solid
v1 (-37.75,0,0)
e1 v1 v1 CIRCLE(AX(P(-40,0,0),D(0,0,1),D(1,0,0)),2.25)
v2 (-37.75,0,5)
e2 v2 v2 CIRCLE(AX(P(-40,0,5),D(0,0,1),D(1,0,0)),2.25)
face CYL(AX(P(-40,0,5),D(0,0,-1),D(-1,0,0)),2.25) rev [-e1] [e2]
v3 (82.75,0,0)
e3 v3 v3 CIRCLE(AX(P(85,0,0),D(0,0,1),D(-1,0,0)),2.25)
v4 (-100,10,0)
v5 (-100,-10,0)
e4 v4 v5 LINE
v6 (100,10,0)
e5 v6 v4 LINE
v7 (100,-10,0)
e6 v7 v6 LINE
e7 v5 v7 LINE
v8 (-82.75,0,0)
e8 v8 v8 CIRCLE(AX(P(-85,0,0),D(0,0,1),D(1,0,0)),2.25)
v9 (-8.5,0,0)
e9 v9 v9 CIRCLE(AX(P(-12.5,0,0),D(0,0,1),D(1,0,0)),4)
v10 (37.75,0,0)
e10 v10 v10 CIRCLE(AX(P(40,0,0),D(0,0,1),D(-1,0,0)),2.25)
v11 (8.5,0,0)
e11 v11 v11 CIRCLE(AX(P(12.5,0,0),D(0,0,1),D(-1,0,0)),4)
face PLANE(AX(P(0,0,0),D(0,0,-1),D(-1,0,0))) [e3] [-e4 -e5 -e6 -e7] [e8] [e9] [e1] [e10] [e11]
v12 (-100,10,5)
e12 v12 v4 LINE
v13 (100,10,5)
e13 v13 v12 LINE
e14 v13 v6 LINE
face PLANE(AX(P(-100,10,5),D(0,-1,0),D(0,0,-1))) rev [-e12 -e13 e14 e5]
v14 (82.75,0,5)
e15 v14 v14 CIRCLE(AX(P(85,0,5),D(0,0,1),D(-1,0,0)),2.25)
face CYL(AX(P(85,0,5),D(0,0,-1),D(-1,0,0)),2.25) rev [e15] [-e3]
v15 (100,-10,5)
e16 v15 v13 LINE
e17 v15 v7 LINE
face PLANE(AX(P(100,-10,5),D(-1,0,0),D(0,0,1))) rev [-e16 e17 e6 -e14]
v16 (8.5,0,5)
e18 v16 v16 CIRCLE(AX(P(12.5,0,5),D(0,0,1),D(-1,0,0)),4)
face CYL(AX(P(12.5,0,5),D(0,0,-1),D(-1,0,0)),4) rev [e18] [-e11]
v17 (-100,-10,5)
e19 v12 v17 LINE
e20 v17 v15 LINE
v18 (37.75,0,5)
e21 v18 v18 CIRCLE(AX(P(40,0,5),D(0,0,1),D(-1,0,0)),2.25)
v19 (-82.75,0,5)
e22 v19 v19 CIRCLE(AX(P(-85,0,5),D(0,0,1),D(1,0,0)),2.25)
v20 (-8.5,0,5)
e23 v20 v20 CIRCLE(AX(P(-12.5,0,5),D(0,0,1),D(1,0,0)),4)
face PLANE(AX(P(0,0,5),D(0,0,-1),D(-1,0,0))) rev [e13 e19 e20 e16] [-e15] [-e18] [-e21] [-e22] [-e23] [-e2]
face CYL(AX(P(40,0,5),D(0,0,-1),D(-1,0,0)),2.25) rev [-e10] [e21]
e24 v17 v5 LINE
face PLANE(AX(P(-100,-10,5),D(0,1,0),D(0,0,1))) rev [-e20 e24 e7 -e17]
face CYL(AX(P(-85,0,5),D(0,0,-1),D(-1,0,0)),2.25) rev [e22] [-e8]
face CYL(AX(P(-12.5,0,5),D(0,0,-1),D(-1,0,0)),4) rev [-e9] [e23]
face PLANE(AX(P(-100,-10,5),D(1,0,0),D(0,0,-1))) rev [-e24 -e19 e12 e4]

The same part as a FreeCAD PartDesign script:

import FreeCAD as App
import Part
import Sketcher

V = App.Vector
Q = App.Units.Quantity


def add_polygon(sketch, points):
    """Adds a closed chain of lines whose ends are joined by coincident constraints."""
    first, n = sketch.GeometryCount, len(points)
    for a, b in zip(points, points[1:] + points[:1]):
        sketch.addGeometry(Part.LineSegment(App.Vector(*a, 0), App.Vector(*b, 0)), False)
    for i in range(n):
        sketch.addConstraint(Sketcher.Constraint("Coincident", first + i, 2, first + (i + 1) % n, 1))

doc = App.newDocument("Part")
body = doc.addObject("PartDesign::Body", "Body")

sketch1 = body.newObject("Sketcher::SketchObject", "Sketch")
sketch1.AttachmentSupport = (doc.getObject("XY_Plane"), [""])
sketch1.MapMode = "FlatFace"
add_polygon(sketch1, [(-100, 10), (-100, -10), (100, -10), (100, 10)])
sketch1.addGeometry(Part.Circle(V(-85, 0, 0), V(0, 0, 1), 2.25), False)
sketch1.addGeometry(Part.Circle(V(-40, 0, 0), V(0, 0, 1), 2.25), False)
sketch1.addGeometry(Part.Circle(V(-12.5, 0, 0), V(0, 0, 1), 4), False)
sketch1.addGeometry(Part.Circle(V(12.5, 0, 0), V(0, 0, 1), 4), False)
sketch1.addGeometry(Part.Circle(V(40, 0, 0), V(0, 0, 1), 2.25), False)
sketch1.addGeometry(Part.Circle(V(85, 0, 0), V(0, 0, 1), 2.25), False)
sketch1.addConstraint(Sketcher.Constraint("Vertical", 0))
sketch1.addConstraint(Sketcher.Constraint("Horizontal", 1))
sketch1.addConstraint(Sketcher.Constraint("Vertical", 2))
sketch1.addConstraint(Sketcher.Constraint("Horizontal", 3))
sketch1.addConstraint(Sketcher.Constraint("Equal", 4, 5))
sketch1.addConstraint(Sketcher.Constraint("Equal", 6, 7))
sketch1.addConstraint(Sketcher.Constraint("Equal", 5, 8))
sketch1.addConstraint(Sketcher.Constraint("Equal", 8, 9))
sketch1.addConstraint(Sketcher.Constraint("Symmetric", 6, 3, 7, 3, -1, 1))
sketch1.addConstraint(Sketcher.Constraint("Symmetric", 5, 3, 8, 3, -1, 1))
sketch1.addConstraint(Sketcher.Constraint("Symmetric", 4, 3, 9, 3, -1, 1))
sketch1.addConstraint(Sketcher.Constraint("Symmetric", 0, 2, 2, 2, -1, 1))
sketch1.addConstraint(Sketcher.Constraint("PointOnObject", 4, 3, -1))
sketch1.addConstraint(Sketcher.Constraint("PointOnObject", 5, 3, -1))
sketch1.addConstraint(Sketcher.Constraint("PointOnObject", 6, 3, -1))
sketch1.addConstraint(Sketcher.Constraint("Diameter", 6, Q("8 mm")))
sketch1.addConstraint(Sketcher.Constraint("Diameter", 4, Q("4.5 mm")))
sketch1.addConstraint(Sketcher.Constraint("DistanceX", 1, 1, 1, 2, Q("200 mm")))
sketch1.addConstraint(Sketcher.Constraint("DistanceY", 0, 2, 0, 1, Q("20 mm")))
sketch1.addConstraint(Sketcher.Constraint("DistanceX", 4, 3, -1, 1, Q("85 mm")))
sketch1.addConstraint(Sketcher.Constraint("DistanceX", 5, 3, -1, 1, Q("40 mm")))
sketch1.addConstraint(Sketcher.Constraint("DistanceX", 6, 3, 7, 3, Q("25 mm")))
pad1 = body.newObject("PartDesign::Pad", "Pad")
pad1.Profile = sketch1
pad1.Length = 5

doc.recompute()
